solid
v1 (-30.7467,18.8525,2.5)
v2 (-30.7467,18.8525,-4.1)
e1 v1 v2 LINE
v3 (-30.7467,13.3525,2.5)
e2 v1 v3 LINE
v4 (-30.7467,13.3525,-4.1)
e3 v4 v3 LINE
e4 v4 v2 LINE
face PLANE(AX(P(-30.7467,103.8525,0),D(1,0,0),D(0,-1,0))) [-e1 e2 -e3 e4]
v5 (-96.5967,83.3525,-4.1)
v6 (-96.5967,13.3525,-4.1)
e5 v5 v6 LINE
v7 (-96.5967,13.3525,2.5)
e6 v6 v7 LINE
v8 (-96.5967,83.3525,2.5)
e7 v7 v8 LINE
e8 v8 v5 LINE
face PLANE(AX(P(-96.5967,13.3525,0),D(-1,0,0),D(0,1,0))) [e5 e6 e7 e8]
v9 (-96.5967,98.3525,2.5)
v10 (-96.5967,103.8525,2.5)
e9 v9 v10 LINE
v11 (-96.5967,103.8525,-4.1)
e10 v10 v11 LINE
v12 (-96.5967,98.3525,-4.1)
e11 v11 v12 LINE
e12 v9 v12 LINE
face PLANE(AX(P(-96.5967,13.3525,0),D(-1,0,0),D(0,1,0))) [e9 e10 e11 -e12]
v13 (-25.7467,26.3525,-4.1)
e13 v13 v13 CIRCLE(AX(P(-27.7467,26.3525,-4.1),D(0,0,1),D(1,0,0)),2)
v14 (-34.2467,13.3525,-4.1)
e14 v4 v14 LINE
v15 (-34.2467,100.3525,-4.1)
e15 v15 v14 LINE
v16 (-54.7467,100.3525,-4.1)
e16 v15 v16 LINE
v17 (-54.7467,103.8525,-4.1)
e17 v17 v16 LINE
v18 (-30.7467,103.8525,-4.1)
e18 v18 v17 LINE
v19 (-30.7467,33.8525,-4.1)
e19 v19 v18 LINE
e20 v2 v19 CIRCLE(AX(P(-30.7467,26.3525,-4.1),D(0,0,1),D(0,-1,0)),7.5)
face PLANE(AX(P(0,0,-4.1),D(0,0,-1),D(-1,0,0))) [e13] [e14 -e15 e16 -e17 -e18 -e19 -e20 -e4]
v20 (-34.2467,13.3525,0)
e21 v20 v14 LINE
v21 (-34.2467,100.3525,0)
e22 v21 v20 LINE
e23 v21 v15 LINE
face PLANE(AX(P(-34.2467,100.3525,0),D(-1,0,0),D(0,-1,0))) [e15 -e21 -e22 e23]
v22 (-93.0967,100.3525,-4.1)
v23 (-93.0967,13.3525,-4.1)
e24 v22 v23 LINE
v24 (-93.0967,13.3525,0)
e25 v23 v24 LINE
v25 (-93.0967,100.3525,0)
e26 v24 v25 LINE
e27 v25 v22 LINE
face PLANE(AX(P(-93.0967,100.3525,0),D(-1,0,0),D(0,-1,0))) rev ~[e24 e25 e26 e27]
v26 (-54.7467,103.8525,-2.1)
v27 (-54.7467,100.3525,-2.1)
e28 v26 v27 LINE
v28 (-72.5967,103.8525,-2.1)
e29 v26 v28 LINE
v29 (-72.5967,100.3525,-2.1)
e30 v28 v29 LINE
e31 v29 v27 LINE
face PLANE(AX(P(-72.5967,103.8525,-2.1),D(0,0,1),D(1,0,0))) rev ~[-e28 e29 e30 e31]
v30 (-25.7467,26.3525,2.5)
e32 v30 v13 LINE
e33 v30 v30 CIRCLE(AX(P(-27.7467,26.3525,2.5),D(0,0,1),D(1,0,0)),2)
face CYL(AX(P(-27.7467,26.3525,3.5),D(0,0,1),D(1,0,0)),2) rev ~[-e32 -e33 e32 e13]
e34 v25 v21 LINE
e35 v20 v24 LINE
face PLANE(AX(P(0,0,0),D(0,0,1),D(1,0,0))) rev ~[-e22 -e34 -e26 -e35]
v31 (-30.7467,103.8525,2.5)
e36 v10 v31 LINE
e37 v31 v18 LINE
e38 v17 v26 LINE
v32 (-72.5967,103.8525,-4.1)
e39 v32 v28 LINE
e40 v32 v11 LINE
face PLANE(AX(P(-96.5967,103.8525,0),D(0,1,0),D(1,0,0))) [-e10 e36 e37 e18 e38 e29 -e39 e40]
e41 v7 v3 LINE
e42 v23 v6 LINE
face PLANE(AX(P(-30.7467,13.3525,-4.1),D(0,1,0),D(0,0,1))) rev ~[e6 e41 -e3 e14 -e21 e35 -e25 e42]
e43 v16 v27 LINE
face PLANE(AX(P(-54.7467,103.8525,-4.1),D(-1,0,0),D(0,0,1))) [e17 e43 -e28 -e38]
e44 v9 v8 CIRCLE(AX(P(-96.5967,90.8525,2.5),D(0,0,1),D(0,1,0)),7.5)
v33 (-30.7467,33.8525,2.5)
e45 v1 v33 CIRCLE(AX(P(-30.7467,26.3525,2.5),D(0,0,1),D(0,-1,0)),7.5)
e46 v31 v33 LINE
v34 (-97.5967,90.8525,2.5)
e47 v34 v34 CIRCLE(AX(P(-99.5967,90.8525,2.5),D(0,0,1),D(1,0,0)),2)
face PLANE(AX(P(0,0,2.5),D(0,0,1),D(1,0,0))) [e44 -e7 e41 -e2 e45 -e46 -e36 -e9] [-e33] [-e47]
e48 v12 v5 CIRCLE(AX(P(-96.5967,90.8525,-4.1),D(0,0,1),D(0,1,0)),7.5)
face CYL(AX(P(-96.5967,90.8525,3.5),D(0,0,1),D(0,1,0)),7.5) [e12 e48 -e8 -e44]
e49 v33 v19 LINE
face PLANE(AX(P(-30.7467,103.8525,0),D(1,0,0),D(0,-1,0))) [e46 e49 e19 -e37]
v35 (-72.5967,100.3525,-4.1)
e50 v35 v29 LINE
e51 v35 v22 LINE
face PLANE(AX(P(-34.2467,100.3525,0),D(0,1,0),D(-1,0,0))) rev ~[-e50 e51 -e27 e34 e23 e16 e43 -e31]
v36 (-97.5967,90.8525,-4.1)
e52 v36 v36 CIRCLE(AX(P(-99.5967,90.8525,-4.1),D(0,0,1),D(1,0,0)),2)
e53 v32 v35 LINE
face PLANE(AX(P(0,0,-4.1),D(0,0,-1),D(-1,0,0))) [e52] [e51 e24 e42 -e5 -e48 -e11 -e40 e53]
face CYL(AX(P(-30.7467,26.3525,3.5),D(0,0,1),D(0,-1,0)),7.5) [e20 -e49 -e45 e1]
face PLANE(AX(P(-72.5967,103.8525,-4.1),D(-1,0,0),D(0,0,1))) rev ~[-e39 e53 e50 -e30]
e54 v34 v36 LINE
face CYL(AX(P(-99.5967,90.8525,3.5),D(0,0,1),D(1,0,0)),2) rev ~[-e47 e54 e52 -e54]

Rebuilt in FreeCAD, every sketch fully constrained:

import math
import FreeCAD as App
import Part
import Sketcher
from FreeCAD import Vector
Q = App.Units.Quantity


def add_polygon(sketch, points):
    """Adds a closed chain of lines whose ends are joined by coincident constraints."""
    first, n = sketch.GeometryCount, len(points)
    for a, b in zip(points, points[1:] + points[:1]):
        sketch.addGeometry(Part.LineSegment(App.Vector(*a, 0), App.Vector(*b, 0)), False)
    for i in range(n):
        sketch.addConstraint(Sketcher.Constraint("Coincident", first + i, 2, first + (i + 1) % n, 1))

doc = App.newDocument("Part")
body = doc.addObject("PartDesign::Body", "Body")

sketch1 = body.newObject("Sketcher::SketchObject", "Sketch")
sketch1.AttachmentSupport = (doc.getObject("XY_Plane"), [""])
sketch1.MapMode = "FlatFace"
add_polygon(sketch1, [(-93.0967, 13.3525), (-34.2467, 13.3525), (-34.2467, 100.3525), (-93.0967, 100.3525)])
sketch1.addConstraint(Sketcher.Constraint("Horizontal", 0))
sketch1.addConstraint(Sketcher.Constraint("Vertical", 1))
sketch1.addConstraint(Sketcher.Constraint("Horizontal", 2))
sketch1.addConstraint(Sketcher.Constraint("Vertical", 3))
sketch1.addConstraint(Sketcher.Constraint("DistanceY", 1, 1, 1, 2, Q("87 mm")))
sketch1.addConstraint(Sketcher.Constraint("DistanceX", 0, 1, 0, 2, Q("58.85 mm")))
sketch1.addConstraint(Sketcher.Constraint("DistanceX", 0, 2, -1, 1, Q("34.2467 mm")))
sketch1.addConstraint(Sketcher.Constraint("DistanceY", -1, 1, 0, 2, Q("13.3525 mm")))
pad1 = body.newObject("PartDesign::Pad", "Pad")
pad1.Profile = sketch1
pad1.Length = 3.5

sketch2 = body.newObject("Sketcher::SketchObject", "Sketch001")
sketch2.AttachmentSupport = (doc.getObject("XY_Plane"), [""])
sketch2.MapMode = "FlatFace"
sketch2.AttachmentOffset = App.Placement(Vector(0, 0, 3.5), App.Rotation())
add_polygon(sketch2, [(-30.7467, 13.3525), (-96.5967, 13.3525), (-96.5967, 9.8525), (-30.7467, 9.8525)])
sketch2.addConstraint(Sketcher.Constraint("Horizontal", 0))
sketch2.addConstraint(Sketcher.Constraint("Vertical", 1))
sketch2.addConstraint(Sketcher.Constraint("Horizontal", 2))
sketch2.addConstraint(Sketcher.Constraint("Vertical", 3))
sketch2.addConstraint(Sketcher.Constraint("DistanceY", 1, 2, 1, 1, Q("3.5 mm")))
sketch2.addConstraint(Sketcher.Constraint("DistanceX", 0, 2, 0, 1, Q("65.85 mm")))
sketch2.addConstraint(Sketcher.Constraint("DistanceX", 0, 2, -1, 1, Q("96.5967 mm")))
sketch2.addConstraint(Sketcher.Constraint("DistanceY", -1, 1, 0, 2, Q("13.3525 mm")))
pad2 = body.newObject("PartDesign::Pad", "Pad001")
pad2.Profile = sketch2
pad2.Length = 5.6
pad2.Reversed = True

sketch3 = body.newObject("Sketcher::SketchObject", "Sketch002")
sketch3.AttachmentSupport = (doc.getObject("XY_Plane"), [""])
sketch3.MapMode = "FlatFace"
add_polygon(sketch3, [(-30.7467, 103.8525), (-30.7467, 13.3525), (-34.2467, 13.3525), (-34.2467, 100.3525), (-93.0967, 100.3525), (-93.0967, 13.3525), (-96.5967, 13.3525), (-96.5967, 103.8525)])
sketch3.addConstraint(Sketcher.Constraint("Vertical", 0))
sketch3.addConstraint(Sketcher.Constraint("Horizontal", 1))
sketch3.addConstraint(Sketcher.Constraint("Vertical", 2))
sketch3.addConstraint(Sketcher.Constraint("Horizontal", 3))
sketch3.addConstraint(Sketcher.Constraint("Vertical", 4))
sketch3.addConstraint(Sketcher.Constraint("Horizontal", 5))
sketch3.addConstraint(Sketcher.Constraint("Vertical", 6))
sketch3.addConstraint(Sketcher.Constraint("Horizontal", 7))
sketch3.addConstraint(Sketcher.Constraint("Horizontal", 1, 2, 4, 2))
sketch3.addConstraint(Sketcher.Constraint("Equal", 1, 5))
sketch3.addConstraint(Sketcher.Constraint("DistanceX", 1, 2, 1, 1, Q("3.5 mm")))
sketch3.addConstraint(Sketcher.Constraint("DistanceY", 3, 2, 6, 2, Q("3.5 mm")))
sketch3.addConstraint(Sketcher.Constraint("DistanceY", 2, 1, 2, 2, Q("87 mm")))
sketch3.addConstraint(Sketcher.Constraint("DistanceX", 3, 2, 3, 1, Q("58.85 mm")))
sketch3.addConstraint(Sketcher.Constraint("DistanceX", 0, 2, -1, 1, Q("30.7467 mm")))
sketch3.addConstraint(Sketcher.Constraint("DistanceY", -1, 1, 0, 2, Q("13.3525 mm")))
pad3 = body.newObject("PartDesign::Pad", "Pad002")
pad3.Profile = sketch3
pad3.Length = 4.1
pad3.Reversed = True

sketch4 = body.newObject("Sketcher::SketchObject", "Sketch003")
sketch4.AttachmentSupport = (doc.getObject("XY_Plane"), [""])
sketch4.MapMode = "FlatFace"
add_polygon(sketch4, [(-34.2467, 100.3525), (-34.2467, 13.3525), (-30.7467, 13.3525), (-30.7467, 103.8525), (-96.5967, 103.8525), (-96.5967, 13.3525), (-93.0967, 13.3525), (-93.0967, 100.3525)])
sketch4.addConstraint(Sketcher.Constraint("Vertical", 0))
sketch4.addConstraint(Sketcher.Constraint("Horizontal", 1))
sketch4.addConstraint(Sketcher.Constraint("Vertical", 2))
sketch4.addConstraint(Sketcher.Constraint("Horizontal", 3))
sketch4.addConstraint(Sketcher.Constraint("Vertical", 4))
sketch4.addConstraint(Sketcher.Constraint("Horizontal", 5))
sketch4.addConstraint(Sketcher.Constraint("Vertical", 6))
sketch4.addConstraint(Sketcher.Constraint("Horizontal", 7))
sketch4.addConstraint(Sketcher.Constraint("Horizontal", 1, 2, 4, 2))
sketch4.addConstraint(Sketcher.Constraint("Equal", 1, 5))
sketch4.addConstraint(Sketcher.Constraint("DistanceY", 0, 2, 0, 1, Q("87 mm")))
sketch4.addConstraint(Sketcher.Constraint("DistanceX", 1, 1, 1, 2, Q("3.5 mm")))
sketch4.addConstraint(Sketcher.Constraint("DistanceY", 2, 1, 2, 2, Q("90.5 mm")))
sketch4.addConstraint(Sketcher.Constraint("DistanceX", 3, 2, 3, 1, Q("65.85 mm")))
sketch4.addConstraint(Sketcher.Constraint("DistanceX", 0, 2, -1, 1, Q("34.2467 mm")))
sketch4.addConstraint(Sketcher.Constraint("DistanceY", -1, 1, 0, 2, Q("13.3525 mm")))
pad4 = body.newObject("PartDesign::Pad", "Pad003")
pad4.Profile = sketch4
pad4.Length = 3.5

sketch5 = body.newObject("Sketcher::SketchObject", "Sketch004")
sketch5.AttachmentSupport = (doc.getObject("XZ_Plane"), [""])
sketch5.MapMode = "FlatFace"
sketch5.AttachmentOffset = App.Placement(Vector(0, 0, -103.8525), App.Rotation())
add_polygon(sketch5, [(-54.7467, -2.1), (-54.7467, -4.1), (-71.7467, -4.1), (-71.7467, -2.1)])
sketch5.addConstraint(Sketcher.Constraint("Vertical", 0))
sketch5.addConstraint(Sketcher.Constraint("Horizontal", 1))
sketch5.addConstraint(Sketcher.Constraint("Vertical", 2))
sketch5.addConstraint(Sketcher.Constraint("Horizontal", 3))
sketch5.addConstraint(Sketcher.Constraint("DistanceX", 1, 2, 1, 1, Q("17 mm")))
sketch5.addConstraint(Sketcher.Constraint("DistanceY", 0, 2, 0, 1, Q("2 mm")))
sketch5.addConstraint(Sketcher.Constraint("DistanceY", 0, 2, -1, 1, Q("4.1 mm")))
sketch5.addConstraint(Sketcher.Constraint("DistanceX", 0, 2, -1, 1, Q("54.7467 mm")))
pocket1 = body.newObject("PartDesign::Pocket", "Pocket")
pocket1.Profile = sketch5
pocket1.Length = 3.5
pocket1.Reversed = True

sketch6 = body.newObject("Sketcher::SketchObject", "Sketch005")
sketch6.AttachmentSupport = (doc.getObject("XY_Plane"), [""])
sketch6.MapMode = "FlatFace"
sketch6.AttachmentOffset = App.Placement(Vector(0, 0, -4.1), App.Rotation())
sketch6.addGeometry(Part.Circle(Vector(-27.7467, 22.8525, 0), Vector(0, 0, 1), 2), False)
sketch6.addConstraint(Sketcher.Constraint("Diameter", 0, Q("4 mm")))
sketch6.addConstraint(Sketcher.Constraint("DistanceX", 0, 3, -1, 1, Q("27.7467 mm")))
sketch6.addConstraint(Sketcher.Constraint("DistanceY", -1, 1, 0, 3, Q("22.8525 mm")))
pocket2 = body.newObject("PartDesign::Pocket", "Pocket001")
pocket2.Profile = sketch6
pocket2.Type = "ThroughAll"
pocket2.Reversed = True

sketch7 = body.newObject("Sketcher::SketchObject", "Sketch006")
sketch7.AttachmentSupport = (doc.getObject("XY_Plane"), [""])
sketch7.MapMode = "FlatFace"
sketch7.AttachmentOffset = App.Placement(Vector(0, 0, -4.1), App.Rotation())
sketch7.addGeometry(Part.Circle(Vector(-99.5967, 90.8525, 0), Vector(0, 0, 1), 2), False)
sketch7.addConstraint(Sketcher.Constraint("Diameter", 0, Q("4 mm")))
sketch7.addConstraint(Sketcher.Constraint("DistanceX", 0, 3, -1, 1, Q("99.5967 mm")))
sketch7.addConstraint(Sketcher.Constraint("DistanceY", -1, 1, 0, 3, Q("90.8525 mm")))
pocket3 = body.newObject("PartDesign::Pocket", "Pocket002")
pocket3.Profile = sketch7
pocket3.Type = "ThroughAll"
pocket3.Reversed = True

sketch8 = body.newObject("Sketcher::SketchObject", "Sketch007")
sketch8.AttachmentSupport = (doc.getObject("YZ_Plane"), [""])
sketch8.MapMode = "FlatFace"
sketch8.AttachmentOffset = App.Placement(Vector(0, 0, -30.7467), App.Rotation())
add_polygon(sketch8, [(9.8525, -4.1), (13.3525, -4.1), (13.3525, 3.5), (9.8525, 3.5)])
sketch8.addConstraint(Sketcher.Constraint("Horizontal", 0))
sketch8.addConstraint(Sketcher.Constraint("Vertical", 1))
sketch8.addConstraint(Sketcher.Constraint("Horizontal", 2))
sketch8.addConstraint(Sketcher.Constraint("Vertical", 3))
sketch8.addConstraint(Sketcher.Constraint("DistanceX", 0, 1, 0, 2, Q("3.5 mm")))
sketch8.addConstraint(Sketcher.Constraint("DistanceY", 1, 1, 1, 2, Q("7.6 mm")))
sketch8.addConstraint(Sketcher.Constraint("DistanceY", 0, 2, -1, 1, Q("4.1 mm")))
sketch8.addConstraint(Sketcher.Constraint("DistanceX", -1, 1, 0, 2, Q("13.3525 mm")))
pocket4 = body.newObject("PartDesign::Pocket", "Pocket003")
pocket4.Profile = sketch8
pocket4.Type = "ThroughAll"

sketch9 = body.newObject("Sketcher::SketchObject", "Sketch008")
sketch9.AttachmentSupport = (doc.getObject("XY_Plane"), [""])
sketch9.MapMode = "FlatFace"
sketch9.AttachmentOffset = App.Placement(Vector(0, 0, 3.5), App.Rotation())
sketch9.addGeometry(Part.ArcOfCircle(Part.Circle(Vector(-30.7467, 26.3525, 0), Vector(0, 0, 1), 7.5), math.radians(-90), math.radians(90)), False)
sketch9.addGeometry(Part.LineSegment(Vector(-30.7467, 33.8525, 0), Vector(-30.7467, 18.8525, 0)), False)
sketch9.addGeometry(Part.Circle(Vector(-27.7467, 26.3525, 0), Vector(0, 0, 1), 2), False)
sketch9.addGeometry(Part.ArcOfCircle(Part.Circle(Vector(-96.5967, 90.8525, 0), Vector(0, 0, 1), 7.5), math.radians(90), math.radians(270)), False)
sketch9.addGeometry(Part.LineSegment(Vector(-96.5967, 83.3525, 0), Vector(-96.5967, 98.3525, 0)), False)
sketch9.addGeometry(Part.Circle(Vector(-99.5967, 90.8525, 0), Vector(0, 0, 1), 2), False)
sketch9.addConstraint(Sketcher.Constraint("Coincident", 0, 1, 1, 2))
sketch9.addConstraint(Sketcher.Constraint("Coincident", 1, 1, 0, 2))
sketch9.addConstraint(Sketcher.Constraint("Coincident", 3, 1, 4, 2))
sketch9.addConstraint(Sketcher.Constraint("Coincident", 4, 1, 3, 2))
sketch9.addConstraint(Sketcher.Constraint("Vertical", 1))
sketch9.addConstraint(Sketcher.Constraint("Vertical", 4))
sketch9.addConstraint(Sketcher.Constraint("Equal", 0, 3))
sketch9.addConstraint(Sketcher.Constraint("Equal", 2, 5))
sketch9.addConstraint(Sketcher.Constraint("Horizontal", 0, 3, 2, 3))
sketch9.addConstraint(Sketcher.Constraint("Horizontal", 3, 3, 5, 3))
sketch9.addConstraint(Sketcher.Constraint("Diameter", 2, Q("4 mm")))
sketch9.addConstraint(Sketcher.Constraint("Radius", 0, Q("7.5 mm")))
sketch9.addConstraint(Sketcher.Constraint("DistanceX", 0, 3, 2, 3, Q("3 mm")))
sketch9.addConstraint(Sketcher.Constraint("DistanceX", 5, 3, 3, 3, Q("3 mm")))
sketch9.addConstraint(Sketcher.Constraint("DistanceX", 0, 1, 2, 3, Q("3 mm")))
sketch9.addConstraint(Sketcher.Constraint("DistanceX", 5, 3, 3, 1, Q("3 mm")))
sketch9.addConstraint(Sketcher.Constraint("DistanceY", 0, 1, 3, 3, Q("72 mm")))
sketch9.addConstraint(Sketcher.Constraint("DistanceX", 3, 3, 0, 3, Q("65.85 mm")))
sketch9.addConstraint(Sketcher.Constraint("DistanceX", 0, 3, -1, 1, Q("30.7467 mm")))
sketch9.addConstraint(Sketcher.Constraint("DistanceY", -1, 1, 0, 3, Q("26.3525 mm")))
pad5 = body.newObject("PartDesign::Pad", "Pad004")
pad5.Profile = sketch9
pad5.Length = 7.6
pad5.Reversed = True

sketch10 = body.newObject("Sketcher::SketchObject", "Sketch009")
sketch10.AttachmentSupport = (doc.getObject("XY_Plane"), [""])
sketch10.MapMode = "FlatFace"
sketch10.AttachmentOffset = App.Placement(Vector(0, 0, 3.5), App.Rotation())
add_polygon(sketch10, [(-122.0727, 3.641), (-13.2494, 3.641), (-13.2494, 119.9278), (-122.0727, 119.9278)])
sketch10.addConstraint(Sketcher.Constraint("Horizontal", 0))
sketch10.addConstraint(Sketcher.Constraint("Vertical", 1))
sketch10.addConstraint(Sketcher.Constraint("Horizontal", 2))
sketch10.addConstraint(Sketcher.Constraint("Vertical", 3))
sketch10.addConstraint(Sketcher.Constraint("DistanceX", 0, 1, 0, 2, Q("108.8233 mm")))
sketch10.addConstraint(Sketcher.Constraint("DistanceY", 1, 1, 1, 2, Q("116.2868 mm")))
sketch10.addConstraint(Sketcher.Constraint("DistanceY", -1, 1, 0, 2, Q("3.641 mm")))
sketch10.addConstraint(Sketcher.Constraint("DistanceX", 0, 2, -1, 1, Q("13.2494 mm")))
pocket5 = body.newObject("PartDesign::Pocket", "Pocket004")
pocket5.Profile = sketch10
pocket5.Length = 1

sketch11 = body.newObject("Sketcher::SketchObject", "Sketch010")
sketch11.AttachmentSupport = (doc.getObject("XZ_Plane"), [""])
sketch11.MapMode = "FlatFace"
sketch11.AttachmentOffset = App.Placement(Vector(0, 0, -103.8525), App.Rotation())
add_polygon(sketch11, [(-72.5967, -9.3977), (-72.5967, -2.1), (-54.7467, -2.1), (-54.7467, -9.3977)])
sketch11.addConstraint(Sketcher.Constraint("Vertical", 0))
sketch11.addConstraint(Sketcher.Constraint("Horizontal", 1))
sketch11.addConstraint(Sketcher.Constraint("Vertical", 2))
sketch11.addConstraint(Sketcher.Constraint("Horizontal", 3))
sketch11.addConstraint(Sketcher.Constraint("DistanceX", 1, 1, 1, 2, Q("17.85 mm")))
sketch11.addConstraint(Sketcher.Constraint("DistanceY", 0, 2, -1, 1, Q("2.1 mm")))
sketch11.addConstraint(Sketcher.Constraint("DistanceY", 0, 1, 0, 2, Q("7.2977 mm")))
sketch11.addConstraint(Sketcher.Constraint("DistanceX", 0, 2, -1, 1, Q("72.5967 mm")))
pocket6 = body.newObject("PartDesign::Pocket", "Pocket005")
pocket6.Profile = sketch11
pocket6.Length = 10
pocket6.Reversed = True

doc.recompute()
